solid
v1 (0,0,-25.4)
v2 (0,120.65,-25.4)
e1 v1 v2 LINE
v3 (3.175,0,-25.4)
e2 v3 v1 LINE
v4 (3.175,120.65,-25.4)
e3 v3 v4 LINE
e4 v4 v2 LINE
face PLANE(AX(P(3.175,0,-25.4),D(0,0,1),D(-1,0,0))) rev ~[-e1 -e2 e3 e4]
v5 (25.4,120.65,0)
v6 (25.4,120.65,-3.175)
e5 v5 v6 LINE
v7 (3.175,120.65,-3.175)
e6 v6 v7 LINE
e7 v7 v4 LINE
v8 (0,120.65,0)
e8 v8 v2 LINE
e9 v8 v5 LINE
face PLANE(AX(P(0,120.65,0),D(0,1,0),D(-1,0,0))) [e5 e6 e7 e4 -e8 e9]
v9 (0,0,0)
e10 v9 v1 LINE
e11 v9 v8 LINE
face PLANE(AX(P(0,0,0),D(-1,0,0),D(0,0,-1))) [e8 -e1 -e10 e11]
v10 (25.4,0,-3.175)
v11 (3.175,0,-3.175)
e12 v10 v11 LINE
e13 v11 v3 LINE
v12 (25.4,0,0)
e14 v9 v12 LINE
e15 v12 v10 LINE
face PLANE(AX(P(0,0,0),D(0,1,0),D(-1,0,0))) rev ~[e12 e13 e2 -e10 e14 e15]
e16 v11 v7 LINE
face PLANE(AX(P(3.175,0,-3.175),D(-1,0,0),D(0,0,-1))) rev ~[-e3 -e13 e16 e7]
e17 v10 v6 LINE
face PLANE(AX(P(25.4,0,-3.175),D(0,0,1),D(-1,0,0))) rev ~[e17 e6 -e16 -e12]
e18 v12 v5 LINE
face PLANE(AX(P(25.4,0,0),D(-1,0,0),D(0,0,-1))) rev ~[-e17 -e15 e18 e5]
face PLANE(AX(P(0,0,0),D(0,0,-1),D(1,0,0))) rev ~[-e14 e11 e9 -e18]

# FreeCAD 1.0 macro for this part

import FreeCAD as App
import Part
import Sketcher
from FreeCAD import Vector
Q = App.Units.Quantity

doc = App.newDocument("Part")
body = doc.addObject("PartDesign::Body", "Body")

# Sketch on XZ plane
sketch1 = body.newObject("Sketcher::SketchObject", "Sketch")
sketch1.AttachmentSupport = (doc.getObject("XZ_Plane"), [""])
sketch1.MapMode = "FlatFace"
sketch1.addGeometry([
    Part.LineSegment(Vector(0, -25.4, 0), Vector(0, 0, 0)),  # 0
    Part.LineSegment(Vector(0, 0, 0), Vector(25.4, 0, 0)),  # 1
    Part.LineSegment(Vector(25.4, 0, 0), Vector(25.4, -3.2, 0)),  # 2
    Part.LineSegment(Vector(25.4, -3.2, 0), Vector(3.2, -3.2, 0)),  # 3
    Part.LineSegment(Vector(3.2, -3.2, 0), Vector(3.2, -25.4, 0)),  # 4
    Part.LineSegment(Vector(3.2, -25.4, 0), Vector(0, -25.4, 0)),  # 5
], False)
sketch1.addConstraint([
    Sketcher.Constraint("Coincident", 0, 2, 1, 1),
    Sketcher.Constraint("Coincident", 1, 2, 2, 1),
    Sketcher.Constraint("Coincident", 2, 2, 3, 1),
    Sketcher.Constraint("Coincident", 3, 2, 4, 1),
    Sketcher.Constraint("Coincident", 4, 2, 5, 1),
    Sketcher.Constraint("Coincident", 5, 2, 0, 1),
    Sketcher.Constraint("Vertical", 0),
    Sketcher.Constraint("Horizontal", 1),
    Sketcher.Constraint("Vertical", 2),
    Sketcher.Constraint("Horizontal", 3),
    Sketcher.Constraint("Vertical", 4),
    Sketcher.Constraint("Horizontal", 5),
    Sketcher.Constraint("Coincident", 0, 2, -1, 1),
    Sketcher.Constraint("Equal", 1, 0),
    Sketcher.Constraint("Equal", 5, 2),
    Sketcher.Constraint("DistanceX", 1, 1, 1, 2, Q("1 in")),
    Sketcher.Constraint("DistanceX", 5, 2, 5, 1, Q("0.125 in")),
])
pad1 = body.newObject("PartDesign::Pad", "Pad")
pad1.Profile = sketch1
pad1.Length = Q("4.75 in")
pad1.Reversed = True

doc.recompute()
